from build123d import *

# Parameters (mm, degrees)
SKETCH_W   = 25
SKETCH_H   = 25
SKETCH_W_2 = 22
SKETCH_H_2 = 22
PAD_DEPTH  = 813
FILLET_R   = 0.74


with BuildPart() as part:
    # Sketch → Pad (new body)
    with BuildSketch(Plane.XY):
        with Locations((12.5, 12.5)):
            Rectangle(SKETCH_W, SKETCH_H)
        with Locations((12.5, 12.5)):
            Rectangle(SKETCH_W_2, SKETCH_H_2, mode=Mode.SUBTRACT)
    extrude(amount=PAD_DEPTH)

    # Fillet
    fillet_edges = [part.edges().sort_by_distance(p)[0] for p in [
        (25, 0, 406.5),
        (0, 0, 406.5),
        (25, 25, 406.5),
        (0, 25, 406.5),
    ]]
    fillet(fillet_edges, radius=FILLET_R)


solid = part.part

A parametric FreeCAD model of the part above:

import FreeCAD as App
import Part
import Sketcher

V = App.Vector
Q = App.Units.Quantity


def edges_at(feature, points):
    """Names of the edges that pass closest to the given points."""
    edges = feature.Shape.Edges
    near = lambda p: min(range(len(edges)), key=lambda i: edges[i].distToShape(Part.Vertex(*p))[0])
    return sorted({f"Edge{near(p) + 1}" for p in points})

doc = App.newDocument("Part")
params = doc.addObject("Spreadsheet::Sheet", "Params")
for row, (alias, value) in enumerate([
    ("sketch1_width", "25 mm"),
    ("sketch1_width2", "22 mm"),
    ("pad1_length", "813 mm"),
    ("fillet_radius", "0.74 mm"),
], start=1):
    params.set(f"A{row}", alias)
    params.set(f"B{row}", "=" + value)
    params.setAlias(f"B{row}", alias)

body = doc.addObject("PartDesign::Body", "Body")

# Sketch on XY plane
sketch1 = body.newObject("Sketcher::SketchObject", "Sketch")
sketch1.AttachmentSupport = (doc.getObject("XY_Plane"), [""])
sketch1.MapMode = "FlatFace"
sketch1.addGeometry(Part.LineSegment(V(0, 25, 0), V(0, 0, 0)), False)
sketch1.addGeometry(Part.LineSegment(V(0, 0, 0), V(25, 0, 0)), False)
sketch1.addGeometry(Part.LineSegment(V(25, 0, 0), V(25, 25, 0)), False)
sketch1.addGeometry(Part.LineSegment(V(25, 25, 0), V(0, 25, 0)), False)
sketch1.addGeometry(Part.LineSegment(V(24, 2, 0), V(2, 2, 0)), False)
sketch1.addGeometry(Part.LineSegment(V(2, 2, 0), V(2, 24, 0)), False)
sketch1.addGeometry(Part.LineSegment(V(2, 24, 0), V(24, 24, 0)), False)
sketch1.addGeometry(Part.LineSegment(V(24, 24, 0), V(24, 2, 0)), False)
sketch1.addConstraint(Sketcher.Constraint("Coincident", 0, 2, 1, 1))
sketch1.addConstraint(Sketcher.Constraint("Coincident", 1, 2, 2, 1))
sketch1.addConstraint(Sketcher.Constraint("Coincident", 2, 2, 3, 1))
sketch1.addConstraint(Sketcher.Constraint("Coincident", 3, 2, 0, 1))
sketch1.addConstraint(Sketcher.Constraint("Coincident", 4, 2, 5, 1))
sketch1.addConstraint(Sketcher.Constraint("Coincident", 5, 2, 6, 1))
sketch1.addConstraint(Sketcher.Constraint("Coincident", 6, 2, 7, 1))
sketch1.addConstraint(Sketcher.Constraint("Coincident", 7, 2, 4, 1))
sketch1.addConstraint(Sketcher.Constraint("Vertical", 0))
sketch1.addConstraint(Sketcher.Constraint("Horizontal", 1))
sketch1.addConstraint(Sketcher.Constraint("Vertical", 2))
sketch1.addConstraint(Sketcher.Constraint("Horizontal", 3))
sketch1.addConstraint(Sketcher.Constraint("Horizontal", 4))
sketch1.addConstraint(Sketcher.Constraint("Vertical", 5))
sketch1.addConstraint(Sketcher.Constraint("Horizontal", 6))
sketch1.addConstraint(Sketcher.Constraint("Vertical", 7))
sketch1.addConstraint(Sketcher.Constraint("Coincident", 0, 2, -1, 1))
sketch1.addConstraint(Sketcher.Constraint("Equal", 3, 0))
sketch1.addConstraint(Sketcher.Constraint("Equal", 6, 5))
sketch1.addConstraint(Sketcher.Constraint("DistanceX", 1, 1, 1, 2, Q("25 mm")))
sketch1.addConstraint(Sketcher.Constraint("DistanceX", 4, 2, 4, 1, Q("22 mm")))
sketch1.addConstraint(Sketcher.Constraint("DistanceX", -1, 1, 4, 2, Q("1.5 mm")))
sketch1.addConstraint(Sketcher.Constraint("DistanceY", -1, 1, 4, 2, Q("1.5 mm")))
sketch1.setExpression("Constraints[19]", "Params.sketch1_width")
sketch1.setExpression("Constraints[20]", "Params.sketch1_width2")
pad1 = body.newObject("PartDesign::Pad", "Pad")
pad1.Profile = sketch1
pad1.setExpression("Length", "Params.pad1_length")
doc.recompute()

fillet = body.newObject("PartDesign::Fillet", "Fillet")
fillet.Base = (pad1, edges_at(pad1, [
    (25, 0, 406.5),
    (0, 0, 406.5),
    (25, 25, 406.5),
    (0, 25, 406.5),
]))
fillet.setExpression("Radius", "Params.fillet_radius")

doc.recompute()
